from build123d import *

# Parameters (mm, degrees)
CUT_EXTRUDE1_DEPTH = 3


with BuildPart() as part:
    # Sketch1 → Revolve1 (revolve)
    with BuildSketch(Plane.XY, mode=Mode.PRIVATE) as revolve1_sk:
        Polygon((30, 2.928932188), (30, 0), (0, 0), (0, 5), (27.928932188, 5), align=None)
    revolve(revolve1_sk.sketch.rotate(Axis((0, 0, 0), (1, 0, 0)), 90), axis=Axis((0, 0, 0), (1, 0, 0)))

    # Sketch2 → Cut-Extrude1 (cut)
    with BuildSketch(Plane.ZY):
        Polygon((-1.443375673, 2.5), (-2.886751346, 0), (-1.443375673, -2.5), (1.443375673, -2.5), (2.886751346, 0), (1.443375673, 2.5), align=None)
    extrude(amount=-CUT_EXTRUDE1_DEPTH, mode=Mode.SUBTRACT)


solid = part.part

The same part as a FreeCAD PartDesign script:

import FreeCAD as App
import Part
import Sketcher

V = App.Vector
Q = App.Units.Quantity

doc = App.newDocument("Part")
body = doc.addObject("PartDesign::Body", "Body")

# Sketch on XY plane
sketch1 = doc.addObject("Sketcher::SketchObject", "Sketch")
body.addObject(sketch1)
sketch1.AttachmentSupport = (doc.XY_Plane, [""])
sketch1.MapMode = "FlatFace"
sketch1.addGeometry(Part.LineSegment(V(30, 0, 0), V(30, 2.9, 0)), False)
sketch1.addGeometry(Part.LineSegment(V(30, 2.9, 0), V(27.9, 5, 0)), False)
sketch1.addGeometry(Part.LineSegment(V(27.9, 5, 0), V(0, 5, 0)), False)
sketch1.addGeometry(Part.LineSegment(V(0, 5, 0), V(0, 0, 0)), False)
sketch1.addGeometry(Part.LineSegment(V(0, 0, 0), V(30, 0, 0)), False)
sketch1.addConstraint(Sketcher.Constraint("Coincident", 0, 2, 1, 1))
sketch1.addConstraint(Sketcher.Constraint("Coincident", 1, 2, 2, 1))
sketch1.addConstraint(Sketcher.Constraint("Coincident", 2, 2, 3, 1))
sketch1.addConstraint(Sketcher.Constraint("Coincident", 3, 2, 4, 1))
sketch1.addConstraint(Sketcher.Constraint("Coincident", 4, 2, 0, 1))
sketch1.addConstraint(Sketcher.Constraint("Vertical", 0))
sketch1.addConstraint(Sketcher.Constraint("Horizontal", 2))
sketch1.addConstraint(Sketcher.Constraint("Vertical", 3))
sketch1.addConstraint(Sketcher.Constraint("Horizontal", 4))
sketch1.addConstraint(Sketcher.Constraint("Coincident", 3, 2, -1, 1))
sketch1.addConstraint(Sketcher.Constraint("DistanceX", 4, 1, 4, 2, Q("30 mm")))
sketch1.addConstraint(Sketcher.Constraint("DistanceY", 3, 2, 3, 1, Q("5 mm")))
sketch1.addConstraint(Sketcher.Constraint("Angle", 1, Q("135 deg")))
sketch1.addConstraint(Sketcher.Constraint("DistanceX", 2, 2, 2, 1, Q("27.928932 mm")))
revolution = doc.addObject("PartDesign::Revolution", "Revolution")
body.addObject(revolution)
revolution.Profile = sketch1
revolution.ReferenceAxis = (sketch1, ["H_Axis"])
revolution.Angle = 360

# Sketch on YZ plane
sketch2 = doc.addObject("Sketcher::SketchObject", "Sketch001")
body.addObject(sketch2)
sketch2.AttachmentSupport = (doc.YZ_Plane, [""])
sketch2.MapMode = "FlatFace"
sketch2.addGeometry(Part.LineSegment(V(2.5, -1.4, 0), V(0, -2.9, 0)), False)
sketch2.addGeometry(Part.LineSegment(V(0, -2.9, 0), V(-2.5, -1.4, 0)), False)
sketch2.addGeometry(Part.LineSegment(V(-2.5, -1.4, 0), V(-2.5, 1.4, 0)), False)
sketch2.addGeometry(Part.LineSegment(V(-2.5, 1.4, 0), V(0, 2.9, 0)), False)
sketch2.addGeometry(Part.LineSegment(V(0, 2.9, 0), V(2.5, 1.4, 0)), False)
sketch2.addGeometry(Part.LineSegment(V(2.5, 1.4, 0), V(2.5, -1.4, 0)), False)
sketch2.addConstraint(Sketcher.Constraint("Coincident", 0, 2, 1, 1))
sketch2.addConstraint(Sketcher.Constraint("Coincident", 1, 2, 2, 1))
sketch2.addConstraint(Sketcher.Constraint("Coincident", 2, 2, 3, 1))
sketch2.addConstraint(Sketcher.Constraint("Coincident", 3, 2, 4, 1))
sketch2.addConstraint(Sketcher.Constraint("Coincident", 4, 2, 5, 1))
sketch2.addConstraint(Sketcher.Constraint("Coincident", 5, 2, 0, 1))
sketch2.addConstraint(Sketcher.Constraint("Vertical", 2))
sketch2.addConstraint(Sketcher.Constraint("Vertical", 5))
sketch2.addConstraint(Sketcher.Constraint("Symmetric", 0, 2, 3, 2, -1, 1))
sketch2.addConstraint(Sketcher.Constraint("Symmetric", 1, 2, 4, 2, -1, 1))
sketch2.addConstraint(Sketcher.Constraint("PointOnObject", 0, 2, -2))
sketch2.addConstraint(Sketcher.Constraint("Parallel", 0, 3))
sketch2.addConstraint(Sketcher.Constraint("Horizontal", 2, 2, 4, 2))
sketch2.addConstraint(Sketcher.Constraint("Angle", 0, Q("-150 deg")))
sketch2.addConstraint(Sketcher.Constraint("DistanceX", 2, 2, 4, 2, Q("5 mm")))
sketch2.addConstraint(Sketcher.Constraint("DistanceY", 2, 1, 2, 2, Q("2.886751 mm")))
pocket1 = doc.addObject("PartDesign::Pocket", "Pocket")
body.addObject(pocket1)
pocket1.Profile = sketch2
pocket1.Length = 3
pocket1.Reversed = True

doc.recompute()
